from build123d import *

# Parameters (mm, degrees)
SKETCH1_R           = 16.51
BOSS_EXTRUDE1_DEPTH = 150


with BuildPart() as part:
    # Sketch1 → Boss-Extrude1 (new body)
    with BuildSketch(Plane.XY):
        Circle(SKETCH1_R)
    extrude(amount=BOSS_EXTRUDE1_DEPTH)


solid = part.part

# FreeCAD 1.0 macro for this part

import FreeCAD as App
import Part
import Sketcher
from FreeCAD import Vector

doc = App.newDocument("Part")
params = doc.addObject("Spreadsheet::Sheet", "Params")
for row, (alias, value) in enumerate([
    ("sketch1_diameter", "33.02 mm"),
    ("pad1_length", "150 mm"),
], start=1):
    params.set(f"A{row}", alias)
    params.set(f"B{row}", "=" + value)
    params.setAlias(f"B{row}", alias)

body = doc.addObject("PartDesign::Body", "Body")

sketch1 = body.newObject("Sketcher::SketchObject", "Sketch")
sketch1.AttachmentSupport = (doc.getObject("XY_Plane"), [""])
sketch1.MapMode = "FlatFace"
sketch1.addGeometry(Part.Circle(Vector(0, 0, 0), Vector(0, 0, 1), 16.51), False)
sketch1.addConstraint(Sketcher.Constraint("Coincident", 0, 3, -1, 1))
sketch1.addConstraint(Sketcher.Constraint("Diameter", 0, 33.02))
sketch1.setExpression("Constraints[1]", "Params.sketch1_diameter")
pad1 = body.newObject("PartDesign::Pad", "Pad")
pad1.Profile = sketch1
pad1.setExpression("Length", "Params.pad1_length")

doc.recompute()
